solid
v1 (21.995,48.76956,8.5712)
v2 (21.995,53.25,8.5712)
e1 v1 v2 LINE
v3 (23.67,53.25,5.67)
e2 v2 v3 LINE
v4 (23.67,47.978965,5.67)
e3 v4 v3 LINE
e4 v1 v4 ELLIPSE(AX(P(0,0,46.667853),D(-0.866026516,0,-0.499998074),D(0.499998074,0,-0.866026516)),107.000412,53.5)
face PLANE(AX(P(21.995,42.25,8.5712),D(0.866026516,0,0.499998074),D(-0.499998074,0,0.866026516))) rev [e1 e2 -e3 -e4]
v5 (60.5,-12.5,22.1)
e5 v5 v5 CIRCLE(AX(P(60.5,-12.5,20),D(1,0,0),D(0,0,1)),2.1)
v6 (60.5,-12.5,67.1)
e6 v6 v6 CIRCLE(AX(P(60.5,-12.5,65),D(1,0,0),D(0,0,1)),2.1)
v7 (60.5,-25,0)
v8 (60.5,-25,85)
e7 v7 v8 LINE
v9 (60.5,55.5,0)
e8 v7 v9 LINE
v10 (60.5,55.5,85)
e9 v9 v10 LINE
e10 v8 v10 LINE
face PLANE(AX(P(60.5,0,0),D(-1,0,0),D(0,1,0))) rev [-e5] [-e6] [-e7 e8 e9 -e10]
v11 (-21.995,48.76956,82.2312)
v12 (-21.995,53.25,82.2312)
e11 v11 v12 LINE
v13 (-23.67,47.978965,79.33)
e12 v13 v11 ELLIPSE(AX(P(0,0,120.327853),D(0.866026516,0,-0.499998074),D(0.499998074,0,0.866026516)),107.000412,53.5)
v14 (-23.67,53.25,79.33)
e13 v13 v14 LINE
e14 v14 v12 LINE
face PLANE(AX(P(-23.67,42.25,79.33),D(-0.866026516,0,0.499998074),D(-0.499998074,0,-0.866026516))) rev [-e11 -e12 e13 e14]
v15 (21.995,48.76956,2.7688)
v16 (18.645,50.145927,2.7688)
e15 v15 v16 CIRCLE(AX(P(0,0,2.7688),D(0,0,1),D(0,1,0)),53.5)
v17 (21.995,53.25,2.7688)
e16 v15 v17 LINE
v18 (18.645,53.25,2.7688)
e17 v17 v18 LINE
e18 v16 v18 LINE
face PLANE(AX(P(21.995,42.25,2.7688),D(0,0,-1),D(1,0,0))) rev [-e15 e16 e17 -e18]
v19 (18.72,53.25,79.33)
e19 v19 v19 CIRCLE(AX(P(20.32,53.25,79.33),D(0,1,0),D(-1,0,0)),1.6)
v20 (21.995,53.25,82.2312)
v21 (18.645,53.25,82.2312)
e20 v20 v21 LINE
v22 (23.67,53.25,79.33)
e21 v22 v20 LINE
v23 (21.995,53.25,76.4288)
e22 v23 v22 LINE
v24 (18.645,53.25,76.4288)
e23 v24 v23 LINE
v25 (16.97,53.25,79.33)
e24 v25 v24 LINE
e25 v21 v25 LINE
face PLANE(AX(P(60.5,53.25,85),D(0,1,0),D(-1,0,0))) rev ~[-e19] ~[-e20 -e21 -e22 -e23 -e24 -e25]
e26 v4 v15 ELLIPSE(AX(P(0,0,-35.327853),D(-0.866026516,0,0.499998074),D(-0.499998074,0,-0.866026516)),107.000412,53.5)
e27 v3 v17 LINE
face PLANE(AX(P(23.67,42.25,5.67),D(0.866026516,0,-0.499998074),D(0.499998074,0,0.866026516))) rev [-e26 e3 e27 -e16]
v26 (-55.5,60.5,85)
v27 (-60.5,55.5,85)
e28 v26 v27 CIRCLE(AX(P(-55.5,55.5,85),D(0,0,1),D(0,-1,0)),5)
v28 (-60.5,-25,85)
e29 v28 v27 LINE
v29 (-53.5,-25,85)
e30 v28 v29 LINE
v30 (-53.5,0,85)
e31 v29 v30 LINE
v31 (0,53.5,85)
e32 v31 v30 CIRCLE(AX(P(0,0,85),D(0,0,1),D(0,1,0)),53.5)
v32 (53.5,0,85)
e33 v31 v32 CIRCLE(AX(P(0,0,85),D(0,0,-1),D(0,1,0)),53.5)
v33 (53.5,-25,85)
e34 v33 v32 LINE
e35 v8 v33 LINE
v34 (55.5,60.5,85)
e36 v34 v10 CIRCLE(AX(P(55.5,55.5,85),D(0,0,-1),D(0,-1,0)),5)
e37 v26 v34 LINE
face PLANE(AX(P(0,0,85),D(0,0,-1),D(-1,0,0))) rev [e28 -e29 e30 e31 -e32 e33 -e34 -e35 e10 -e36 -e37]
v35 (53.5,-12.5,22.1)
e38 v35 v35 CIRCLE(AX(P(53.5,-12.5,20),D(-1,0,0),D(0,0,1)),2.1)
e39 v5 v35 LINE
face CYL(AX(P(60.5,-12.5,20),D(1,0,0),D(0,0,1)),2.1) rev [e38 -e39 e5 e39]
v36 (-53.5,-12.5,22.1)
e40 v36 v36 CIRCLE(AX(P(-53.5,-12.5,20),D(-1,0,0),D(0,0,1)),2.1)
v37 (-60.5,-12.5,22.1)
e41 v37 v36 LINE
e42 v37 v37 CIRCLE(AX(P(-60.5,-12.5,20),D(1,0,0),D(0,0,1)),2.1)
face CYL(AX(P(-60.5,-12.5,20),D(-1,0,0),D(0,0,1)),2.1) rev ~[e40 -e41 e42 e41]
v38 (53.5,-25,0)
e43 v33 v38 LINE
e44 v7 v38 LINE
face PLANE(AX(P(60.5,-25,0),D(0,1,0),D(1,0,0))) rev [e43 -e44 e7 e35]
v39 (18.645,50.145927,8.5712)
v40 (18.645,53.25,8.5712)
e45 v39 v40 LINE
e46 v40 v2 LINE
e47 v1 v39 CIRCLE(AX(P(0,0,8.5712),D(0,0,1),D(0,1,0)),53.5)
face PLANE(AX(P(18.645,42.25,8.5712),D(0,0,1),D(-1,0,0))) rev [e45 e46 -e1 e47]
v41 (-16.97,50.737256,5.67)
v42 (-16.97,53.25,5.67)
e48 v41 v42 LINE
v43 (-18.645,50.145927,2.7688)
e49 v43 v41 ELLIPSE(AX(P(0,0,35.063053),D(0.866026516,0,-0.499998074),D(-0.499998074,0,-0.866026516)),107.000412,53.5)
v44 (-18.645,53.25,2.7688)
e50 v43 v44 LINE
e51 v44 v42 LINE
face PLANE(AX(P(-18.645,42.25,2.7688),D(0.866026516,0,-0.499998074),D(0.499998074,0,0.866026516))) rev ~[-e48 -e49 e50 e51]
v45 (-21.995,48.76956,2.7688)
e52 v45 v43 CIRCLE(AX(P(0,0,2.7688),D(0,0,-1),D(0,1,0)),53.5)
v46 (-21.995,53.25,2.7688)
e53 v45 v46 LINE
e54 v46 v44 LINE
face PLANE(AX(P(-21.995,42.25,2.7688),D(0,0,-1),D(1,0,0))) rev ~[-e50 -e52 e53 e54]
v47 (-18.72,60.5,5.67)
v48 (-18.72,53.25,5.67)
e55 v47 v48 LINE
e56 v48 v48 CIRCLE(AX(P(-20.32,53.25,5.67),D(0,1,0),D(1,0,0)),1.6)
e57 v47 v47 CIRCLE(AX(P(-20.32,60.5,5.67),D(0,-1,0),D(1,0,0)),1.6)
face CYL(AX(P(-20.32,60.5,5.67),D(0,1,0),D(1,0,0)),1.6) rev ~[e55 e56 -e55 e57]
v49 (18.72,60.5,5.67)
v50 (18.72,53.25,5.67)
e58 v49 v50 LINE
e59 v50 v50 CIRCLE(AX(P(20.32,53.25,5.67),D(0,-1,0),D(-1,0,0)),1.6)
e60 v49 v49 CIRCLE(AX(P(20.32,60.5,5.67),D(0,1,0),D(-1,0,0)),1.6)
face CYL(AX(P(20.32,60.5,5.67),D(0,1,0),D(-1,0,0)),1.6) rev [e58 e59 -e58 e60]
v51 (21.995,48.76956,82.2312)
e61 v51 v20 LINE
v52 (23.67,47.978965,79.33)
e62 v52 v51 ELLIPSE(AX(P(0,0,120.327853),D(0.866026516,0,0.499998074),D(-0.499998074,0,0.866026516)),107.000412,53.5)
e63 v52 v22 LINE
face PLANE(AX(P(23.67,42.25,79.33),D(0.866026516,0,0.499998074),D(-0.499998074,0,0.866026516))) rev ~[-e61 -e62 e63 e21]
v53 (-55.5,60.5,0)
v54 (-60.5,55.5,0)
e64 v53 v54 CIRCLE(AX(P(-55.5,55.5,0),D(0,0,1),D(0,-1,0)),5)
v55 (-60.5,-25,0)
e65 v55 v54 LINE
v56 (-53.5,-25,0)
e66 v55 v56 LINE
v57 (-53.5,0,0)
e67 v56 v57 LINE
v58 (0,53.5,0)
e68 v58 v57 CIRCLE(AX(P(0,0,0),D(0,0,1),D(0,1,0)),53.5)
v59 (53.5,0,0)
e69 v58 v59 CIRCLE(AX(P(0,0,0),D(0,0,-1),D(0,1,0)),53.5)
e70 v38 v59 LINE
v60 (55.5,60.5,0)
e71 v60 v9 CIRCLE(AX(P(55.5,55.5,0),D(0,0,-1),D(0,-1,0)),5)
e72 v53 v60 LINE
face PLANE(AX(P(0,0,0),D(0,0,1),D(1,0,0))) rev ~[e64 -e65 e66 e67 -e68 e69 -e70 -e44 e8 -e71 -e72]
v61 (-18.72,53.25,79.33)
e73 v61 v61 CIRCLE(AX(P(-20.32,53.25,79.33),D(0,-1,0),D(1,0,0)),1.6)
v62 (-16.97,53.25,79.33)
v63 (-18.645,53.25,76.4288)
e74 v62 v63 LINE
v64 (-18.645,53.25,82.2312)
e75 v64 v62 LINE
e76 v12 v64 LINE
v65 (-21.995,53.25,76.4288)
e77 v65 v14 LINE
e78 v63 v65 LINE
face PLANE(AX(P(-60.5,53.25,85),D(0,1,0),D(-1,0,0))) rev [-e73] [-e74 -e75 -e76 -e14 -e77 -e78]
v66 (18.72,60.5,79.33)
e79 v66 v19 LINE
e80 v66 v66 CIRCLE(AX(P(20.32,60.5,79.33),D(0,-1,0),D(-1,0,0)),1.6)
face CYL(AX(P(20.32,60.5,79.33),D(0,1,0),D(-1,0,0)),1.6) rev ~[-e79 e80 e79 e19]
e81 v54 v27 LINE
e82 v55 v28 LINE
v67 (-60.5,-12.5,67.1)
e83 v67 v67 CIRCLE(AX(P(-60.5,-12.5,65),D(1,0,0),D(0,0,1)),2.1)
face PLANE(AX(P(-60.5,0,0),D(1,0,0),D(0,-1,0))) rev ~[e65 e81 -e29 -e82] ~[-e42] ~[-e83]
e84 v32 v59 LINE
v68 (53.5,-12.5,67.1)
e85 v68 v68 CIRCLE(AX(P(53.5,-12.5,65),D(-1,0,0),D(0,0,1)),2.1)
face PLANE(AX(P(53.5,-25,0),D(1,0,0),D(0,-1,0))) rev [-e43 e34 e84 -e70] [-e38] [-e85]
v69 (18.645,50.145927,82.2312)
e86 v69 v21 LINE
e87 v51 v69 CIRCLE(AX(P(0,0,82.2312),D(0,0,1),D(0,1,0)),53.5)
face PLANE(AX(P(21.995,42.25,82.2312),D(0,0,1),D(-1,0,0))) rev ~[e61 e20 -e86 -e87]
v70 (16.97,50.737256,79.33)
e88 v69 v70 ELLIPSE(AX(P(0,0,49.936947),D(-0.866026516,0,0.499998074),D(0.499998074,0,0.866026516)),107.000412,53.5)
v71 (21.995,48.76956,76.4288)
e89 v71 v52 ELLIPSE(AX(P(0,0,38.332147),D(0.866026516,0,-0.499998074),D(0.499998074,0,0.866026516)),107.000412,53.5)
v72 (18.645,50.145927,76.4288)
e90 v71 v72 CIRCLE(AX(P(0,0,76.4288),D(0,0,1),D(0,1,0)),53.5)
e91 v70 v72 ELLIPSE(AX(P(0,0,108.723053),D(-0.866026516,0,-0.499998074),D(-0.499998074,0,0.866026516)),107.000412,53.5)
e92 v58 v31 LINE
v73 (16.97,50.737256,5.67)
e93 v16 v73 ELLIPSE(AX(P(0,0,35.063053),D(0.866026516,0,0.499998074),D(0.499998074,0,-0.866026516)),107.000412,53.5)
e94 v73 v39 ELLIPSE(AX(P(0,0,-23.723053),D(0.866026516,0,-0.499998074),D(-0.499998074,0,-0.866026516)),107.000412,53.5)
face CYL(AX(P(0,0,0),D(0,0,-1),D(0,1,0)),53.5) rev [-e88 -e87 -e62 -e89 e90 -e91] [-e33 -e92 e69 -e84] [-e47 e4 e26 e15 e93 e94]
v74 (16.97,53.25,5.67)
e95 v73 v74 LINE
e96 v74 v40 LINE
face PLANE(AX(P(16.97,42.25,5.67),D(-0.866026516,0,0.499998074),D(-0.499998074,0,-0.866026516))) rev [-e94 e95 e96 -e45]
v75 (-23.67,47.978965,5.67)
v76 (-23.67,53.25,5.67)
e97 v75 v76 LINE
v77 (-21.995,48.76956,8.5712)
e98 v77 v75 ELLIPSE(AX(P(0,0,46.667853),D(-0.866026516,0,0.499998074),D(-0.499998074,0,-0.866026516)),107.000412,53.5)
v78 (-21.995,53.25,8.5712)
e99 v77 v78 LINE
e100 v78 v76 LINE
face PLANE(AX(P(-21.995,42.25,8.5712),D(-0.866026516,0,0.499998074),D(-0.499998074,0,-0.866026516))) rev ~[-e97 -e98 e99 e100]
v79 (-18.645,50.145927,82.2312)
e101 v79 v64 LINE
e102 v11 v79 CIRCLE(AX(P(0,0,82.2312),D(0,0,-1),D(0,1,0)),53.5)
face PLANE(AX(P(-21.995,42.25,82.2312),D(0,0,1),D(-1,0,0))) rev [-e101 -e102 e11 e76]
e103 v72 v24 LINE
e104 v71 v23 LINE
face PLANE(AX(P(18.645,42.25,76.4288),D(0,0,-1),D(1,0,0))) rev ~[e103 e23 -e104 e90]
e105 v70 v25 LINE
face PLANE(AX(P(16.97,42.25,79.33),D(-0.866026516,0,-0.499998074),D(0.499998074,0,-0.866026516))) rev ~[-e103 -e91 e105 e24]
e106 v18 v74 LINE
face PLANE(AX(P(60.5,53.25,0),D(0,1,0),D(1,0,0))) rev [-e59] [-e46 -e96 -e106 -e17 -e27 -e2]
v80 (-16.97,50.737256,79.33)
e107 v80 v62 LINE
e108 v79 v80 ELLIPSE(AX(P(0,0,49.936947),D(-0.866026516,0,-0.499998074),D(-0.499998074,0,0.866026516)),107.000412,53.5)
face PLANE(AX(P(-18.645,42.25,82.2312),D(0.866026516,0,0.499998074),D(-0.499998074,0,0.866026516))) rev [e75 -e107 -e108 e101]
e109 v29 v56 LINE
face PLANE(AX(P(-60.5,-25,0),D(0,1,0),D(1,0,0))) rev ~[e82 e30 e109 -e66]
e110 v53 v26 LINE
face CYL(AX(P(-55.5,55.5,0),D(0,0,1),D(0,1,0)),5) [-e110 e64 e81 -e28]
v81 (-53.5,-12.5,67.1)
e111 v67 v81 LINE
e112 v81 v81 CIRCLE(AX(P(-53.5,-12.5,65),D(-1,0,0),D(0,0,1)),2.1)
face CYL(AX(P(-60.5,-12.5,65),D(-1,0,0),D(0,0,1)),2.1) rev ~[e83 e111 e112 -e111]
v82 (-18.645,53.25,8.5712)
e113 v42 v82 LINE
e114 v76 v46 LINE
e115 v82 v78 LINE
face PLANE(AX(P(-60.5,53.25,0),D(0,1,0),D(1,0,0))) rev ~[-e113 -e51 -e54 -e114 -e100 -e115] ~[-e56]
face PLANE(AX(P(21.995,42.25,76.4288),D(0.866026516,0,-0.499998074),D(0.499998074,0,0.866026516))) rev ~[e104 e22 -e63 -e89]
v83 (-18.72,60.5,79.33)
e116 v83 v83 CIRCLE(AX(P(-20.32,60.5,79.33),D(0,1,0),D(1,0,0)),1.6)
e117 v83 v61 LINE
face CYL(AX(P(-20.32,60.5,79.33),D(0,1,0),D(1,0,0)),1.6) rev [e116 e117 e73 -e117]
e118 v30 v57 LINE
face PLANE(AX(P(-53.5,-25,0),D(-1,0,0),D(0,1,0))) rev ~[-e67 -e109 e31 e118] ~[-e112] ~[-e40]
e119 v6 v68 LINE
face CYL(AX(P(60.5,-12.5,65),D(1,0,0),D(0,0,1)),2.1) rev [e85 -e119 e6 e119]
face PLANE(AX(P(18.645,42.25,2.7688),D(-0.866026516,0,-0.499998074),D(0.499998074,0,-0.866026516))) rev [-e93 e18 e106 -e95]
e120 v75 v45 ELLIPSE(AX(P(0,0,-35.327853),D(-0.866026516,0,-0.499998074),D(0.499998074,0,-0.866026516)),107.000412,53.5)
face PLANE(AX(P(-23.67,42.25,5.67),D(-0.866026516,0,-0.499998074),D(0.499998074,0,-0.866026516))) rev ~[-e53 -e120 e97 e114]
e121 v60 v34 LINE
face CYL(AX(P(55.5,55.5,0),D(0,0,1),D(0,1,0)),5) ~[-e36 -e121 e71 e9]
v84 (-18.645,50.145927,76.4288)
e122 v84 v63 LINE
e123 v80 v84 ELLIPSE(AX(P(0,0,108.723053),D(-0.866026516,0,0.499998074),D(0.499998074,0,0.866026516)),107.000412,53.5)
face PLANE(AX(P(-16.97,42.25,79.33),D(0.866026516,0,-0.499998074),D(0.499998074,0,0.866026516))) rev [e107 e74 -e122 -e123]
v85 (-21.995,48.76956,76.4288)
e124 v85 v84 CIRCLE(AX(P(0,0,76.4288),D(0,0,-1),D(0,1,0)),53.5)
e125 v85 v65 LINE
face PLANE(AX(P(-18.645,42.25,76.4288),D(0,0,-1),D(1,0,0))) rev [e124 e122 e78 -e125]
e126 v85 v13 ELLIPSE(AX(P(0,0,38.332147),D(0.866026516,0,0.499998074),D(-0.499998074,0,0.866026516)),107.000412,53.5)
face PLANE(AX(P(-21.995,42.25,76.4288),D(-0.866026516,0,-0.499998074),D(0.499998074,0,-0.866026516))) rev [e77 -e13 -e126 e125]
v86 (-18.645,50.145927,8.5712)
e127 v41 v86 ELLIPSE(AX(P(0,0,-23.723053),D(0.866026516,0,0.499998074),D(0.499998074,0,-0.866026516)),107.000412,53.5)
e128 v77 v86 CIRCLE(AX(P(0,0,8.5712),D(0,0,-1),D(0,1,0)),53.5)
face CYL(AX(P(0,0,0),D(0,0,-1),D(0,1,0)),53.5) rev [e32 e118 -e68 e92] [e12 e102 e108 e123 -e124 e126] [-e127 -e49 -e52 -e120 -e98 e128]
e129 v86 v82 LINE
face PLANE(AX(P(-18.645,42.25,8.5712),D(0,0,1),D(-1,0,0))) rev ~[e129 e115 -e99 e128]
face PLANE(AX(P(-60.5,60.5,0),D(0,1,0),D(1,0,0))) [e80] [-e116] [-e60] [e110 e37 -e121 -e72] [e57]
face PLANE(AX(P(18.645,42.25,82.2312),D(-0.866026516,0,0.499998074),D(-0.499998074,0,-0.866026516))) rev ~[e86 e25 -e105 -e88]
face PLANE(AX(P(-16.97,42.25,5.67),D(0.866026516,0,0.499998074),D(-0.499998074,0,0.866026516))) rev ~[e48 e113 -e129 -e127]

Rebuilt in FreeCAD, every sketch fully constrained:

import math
import FreeCAD as App
import Part
import Sketcher
Q = App.Units.Quantity


def edges_at(feature, points):
    """Names of the edges that pass closest to the given points."""
    edges = feature.Shape.Edges
    near = lambda p: min(range(len(edges)), key=lambda i: edges[i].distToShape(Part.Vertex(*p))[0])
    return sorted({f"Edge{near(p) + 1}" for p in points})


def add_polygon(sketch, points):
    """Adds a closed chain of lines whose ends are joined by coincident constraints."""
    first, n = sketch.GeometryCount, len(points)
    for a, b in zip(points, points[1:] + points[:1]):
        sketch.addGeometry(Part.LineSegment(App.Vector(*a, 0), App.Vector(*b, 0)), False)
    for i in range(n):
        sketch.addConstraint(Sketcher.Constraint("Coincident", first + i, 2, first + (i + 1) % n, 1))

doc = App.newDocument("Part")
body = doc.addObject("PartDesign::Body", "Body")

sketch1 = body.newObject("Sketcher::SketchObject", "Sketch")
sketch1.AttachmentSupport = (doc.getObject("XY_Plane"), [""])
sketch1.MapMode = "FlatFace"
sketch1.addGeometry([
    Part.ArcOfCircle(Part.Circle(App.Vector(0, 0, 0), App.Vector(0, 0, 1), 54), math.radians(90), math.radians(180)),
    Part.LineSegment(App.Vector(0, 54, 0), App.Vector(0, 60, 0)),
    Part.LineSegment(App.Vector(0, 60, 0), App.Vector(-60, 60, 0)),
    Part.LineSegment(App.Vector(-60, 60, 0), App.Vector(-60, -25, 0)),
    Part.LineSegment(App.Vector(-60, -25, 0), App.Vector(-54, -25, 0)),
    Part.LineSegment(App.Vector(-54, -25, 0), App.Vector(-54, 0, 0)),
], False)
sketch1.addConstraint([
    Sketcher.Constraint("Coincident", 0, 1, 1, 1),
    Sketcher.Constraint("Coincident", 1, 2, 2, 1),
    Sketcher.Constraint("Coincident", 2, 2, 3, 1),
    Sketcher.Constraint("Coincident", 3, 2, 4, 1),
    Sketcher.Constraint("Coincident", 4, 2, 5, 1),
    Sketcher.Constraint("Tangent", 5, 2, 0, 2),
    Sketcher.Constraint("Vertical", 1),
    Sketcher.Constraint("Horizontal", 2),
    Sketcher.Constraint("Vertical", 3),
    Sketcher.Constraint("Horizontal", 4),
    Sketcher.Constraint("Vertical", 5),
    Sketcher.Constraint("Coincident", 0, 3, -1, 1),
    Sketcher.Constraint("PointOnObject", 0, 1, -2),
    Sketcher.Constraint("Equal", 4, 1),
    Sketcher.Constraint("Radius", 0, 53.5),
    Sketcher.Constraint("DistanceY", 5, 1, 5, 2, 25.0),
    Sketcher.Constraint("DistanceX", 4, 1, 4, 2, 7.0),
])
pad1 = body.newObject("PartDesign::Pad", "Pad")
pad1.Profile = sketch1
pad1.Length = 85

sketch2 = body.newObject("Sketcher::SketchObject", "Sketch001")
sketch2.AttachmentSupport = (doc.getObject("XZ_Plane"), [""])
sketch2.MapMode = "FlatFace"
sketch2.AttachmentOffset = App.Placement(App.Vector(0, 0, -60.5), App.Rotation())
sketch2.addGeometry([
    Part.Circle(App.Vector(-20.3, 79.3, 0), App.Vector(0, 0, 1), 1.6),
    Part.Circle(App.Vector(-20.3, 5.7, 0), App.Vector(0, 0, 1), 1.6),
], False)
sketch2.addConstraint([
    Sketcher.Constraint("Equal", 0, 1),
    Sketcher.Constraint("Vertical", 0, 3, 1, 3),
    Sketcher.Constraint("Diameter", 0, 3.2),
    Sketcher.Constraint("DistanceX", 0, 3, -1, 1, 20.32),
    Sketcher.Constraint("DistanceY", -1, 1, 0, 3, 79.33),
    Sketcher.Constraint("DistanceY", -1, 1, 1, 3, 5.67),
])
pocket1 = body.newObject("PartDesign::Pocket", "Pocket")
pocket1.Profile = sketch2
pocket1.Type = "ThroughAll"
pocket1.Reversed = True

sketch3 = body.newObject("Sketcher::SketchObject", "Sketch002")
sketch3.AttachmentSupport = (doc.getObject("XZ_Plane"), [""])
sketch3.MapMode = "FlatFace"
sketch3.AttachmentOffset = App.Placement(App.Vector(0, 0, -42.25), App.Rotation())
add_polygon(sketch3, [(-18.6, 8.6), (-17, 5.7), (-18.6, 2.8), (-22, 2.8), (-23.7, 5.7), (-22, 8.6)])
sketch3.addGeometry(Part.Circle(App.Vector(-20.3, 5.7, 0), App.Vector(0, 0, 1), 1.6), False)
sketch3.addConstraint([
    Sketcher.Constraint("Horizontal", 2),
    Sketcher.Constraint("Horizontal", 5),
    Sketcher.Constraint("Parallel", 0, 3),
    Sketcher.Constraint("Parallel", 1, 4),
    Sketcher.Constraint("Horizontal", 6, 3, 0, 2),
    Sketcher.Constraint("Horizontal", 0, 2, 3, 2),
    Sketcher.Constraint("Vertical", 2, 2, 4, 2),
    Sketcher.Constraint("Vertical", 1, 2, 5, 2),
    Sketcher.Constraint("Diameter", 6, 3.2),
    Sketcher.Constraint("DistanceX", 3, 2, 0, 2, 6.7),
    Sketcher.Constraint("Angle", 0, Q("-60.0001 deg")),
    Sketcher.Constraint("DistanceX", 2, 2, 2, 1, 3.35),
    Sketcher.Constraint("DistanceX", 6, 3, -1, 1, 20.32),
    Sketcher.Constraint("DistanceY", -1, 1, 6, 3, 5.67),
    Sketcher.Constraint("DistanceX", 0, 2, -1, 1, 16.97),
])
pocket2 = body.newObject("PartDesign::Pocket", "Pocket001")
pocket2.Profile = sketch3
pocket2.Length = 11

sketch4 = body.newObject("Sketcher::SketchObject", "Sketch003")
sketch4.AttachmentSupport = (doc.getObject("XZ_Plane"), [""])
sketch4.MapMode = "FlatFace"
sketch4.AttachmentOffset = App.Placement(App.Vector(0, 0, -60.5), App.Rotation())
add_polygon(sketch4, [(0, 99.1), (0, 42.5), (-20.3, 42.5), (-72.2, 42.5), (-72.2, 99.1)])
sketch4.addGeometry(Part.Circle(App.Vector(-20.3, 79.3, 0), App.Vector(0, 0, 1), 1.6), False)
sketch4.addConstraint([
    Sketcher.Constraint("Vertical", 0),
    Sketcher.Constraint("Horizontal", 1),
    Sketcher.Constraint("Horizontal", 2),
    Sketcher.Constraint("Vertical", 3),
    Sketcher.Constraint("Horizontal", 4),
    Sketcher.Constraint("PointOnObject", 0, 2, -2),
    Sketcher.Constraint("Vertical", 5, 3, 1, 2),
    Sketcher.Constraint("Diameter", 5, 3.2),
    Sketcher.Constraint("DistanceX", 1, 2, 1, 1, 20.32),
    Sketcher.Constraint("DistanceY", 0, 2, 5, 3, 36.83),
    Sketcher.Constraint("DistanceY", -1, 1, 0, 2, 42.5),
    Sketcher.Constraint("DistanceX", 2, 2, 2, 1, 51.8427),
    Sketcher.Constraint("DistanceY", 0, 2, 0, 1, 56.5684),
])
pocket3 = body.newObject("PartDesign::Pocket", "Pocket002")
pocket3.Profile = sketch4
pocket3.Type = "ThroughAll"
pocket3.Reversed = True
doc.recompute()

datumplane = body.newObject("PartDesign::Plane", "DatumPlane")
datumplane.AttachmentSupport = (doc.getObject("XY_Plane"), [""])
datumplane.MapMode = "FlatFace"
datumplane.AttachmentOffset = App.Placement(App.Vector(0, 0, 42.5), App.Rotation())
mirrored = body.newObject("PartDesign::Mirrored", "Mirrored")
mirrored.TransformMode = "Transform body"
mirrored.MirrorPlane = (datumplane, [""])
body.Tip = mirrored

sketch5 = body.newObject("Sketcher::SketchObject", "Sketch004")
sketch5.AttachmentSupport = (doc.getObject("YZ_Plane"), [""])
sketch5.MapMode = "FlatFace"
sketch5.AttachmentOffset = App.Placement(App.Vector(0, 0, -60.5), App.Rotation())
sketch5.addGeometry([
    Part.Circle(App.Vector(-12.5, 65, 0), App.Vector(0, 0, 1), 2.1),
    Part.Circle(App.Vector(-12.5, 20, 0), App.Vector(0, 0, 1), 2.1),
], False)
sketch5.addConstraint([
    Sketcher.Constraint("Equal", 0, 1),
    Sketcher.Constraint("Vertical", 0, 3, 1, 3),
    Sketcher.Constraint("Diameter", 0, 4.2),
    Sketcher.Constraint("DistanceY", -1, 1, 1, 3, 20.0),
    Sketcher.Constraint("DistanceX", 0, 3, -1, 1, 12.5),
    Sketcher.Constraint("DistanceY", -1, 1, 0, 3, 65.0),
])
pocket4 = body.newObject("PartDesign::Pocket", "Pocket003")
pocket4.Profile = sketch5
pocket4.Length = 10
pocket4.Reversed = True
doc.recompute()

fillet = body.newObject("PartDesign::Fillet", "Fillet")
fillet.Base = (pocket4, edges_at(pocket4, [(-60.5, 60.5, 42.5)]))
fillet.Radius = 5
doc.recompute()

mirrored2 = body.newObject("PartDesign::Mirrored", "Mirrored001")
mirrored2.TransformMode = "Transform body"
mirrored2.MirrorPlane = (doc.getObject("YZ_Plane"), [""])
body.Tip = mirrored2

doc.recompute()
